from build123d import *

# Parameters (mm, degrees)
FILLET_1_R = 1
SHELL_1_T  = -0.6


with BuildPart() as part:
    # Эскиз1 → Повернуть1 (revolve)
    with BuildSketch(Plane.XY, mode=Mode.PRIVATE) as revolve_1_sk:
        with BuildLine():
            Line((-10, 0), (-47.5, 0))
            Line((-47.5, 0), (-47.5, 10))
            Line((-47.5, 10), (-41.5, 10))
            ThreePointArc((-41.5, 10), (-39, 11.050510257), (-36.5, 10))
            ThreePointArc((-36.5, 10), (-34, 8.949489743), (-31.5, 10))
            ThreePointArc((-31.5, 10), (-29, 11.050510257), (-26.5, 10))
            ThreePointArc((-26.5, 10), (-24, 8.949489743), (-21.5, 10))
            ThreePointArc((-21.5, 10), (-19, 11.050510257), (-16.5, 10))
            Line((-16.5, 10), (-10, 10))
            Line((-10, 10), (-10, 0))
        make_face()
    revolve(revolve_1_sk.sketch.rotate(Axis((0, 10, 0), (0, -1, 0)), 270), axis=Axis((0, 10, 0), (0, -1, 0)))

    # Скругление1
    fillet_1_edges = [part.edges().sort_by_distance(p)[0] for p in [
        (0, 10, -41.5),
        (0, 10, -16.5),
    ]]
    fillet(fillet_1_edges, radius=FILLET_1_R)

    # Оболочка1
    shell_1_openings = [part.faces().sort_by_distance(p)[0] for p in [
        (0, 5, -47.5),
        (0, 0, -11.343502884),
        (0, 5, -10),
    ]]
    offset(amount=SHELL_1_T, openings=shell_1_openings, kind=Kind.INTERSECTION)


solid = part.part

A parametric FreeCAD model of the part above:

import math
import FreeCAD as App
import Part
import Sketcher
from FreeCAD import Vector


def edges_at(feature, points):
    """Names of the edges that pass closest to the given points."""
    edges = feature.Shape.Edges
    near = lambda p: min(range(len(edges)), key=lambda i: edges[i].distToShape(Part.Vertex(*p))[0])
    return sorted({f"Edge{near(p) + 1}" for p in points})


def faces_at(feature, points):
    """Names of the faces that lie closest to the given points."""
    faces = feature.Shape.Faces
    near = lambda p: min(range(len(faces)), key=lambda i: faces[i].distToShape(Part.Vertex(*p))[0])
    return sorted({f"Face{near(p) + 1}" for p in points})

doc = App.newDocument("Part")
params = doc.addObject("Spreadsheet::Sheet", "Params")
for row, (alias, value) in enumerate([
    ("sketch1_radius", "3.5 mm"),
    ("sketch1_width", "6 mm"),
    ("sketch1_height", "10 mm"),
    ("sketch1_width2", "37.5 mm"),
    ("sketch1_width3", "6.5 mm"),
    ("revolution_angle", "360 deg"),
    ("fillet_radius", "1 mm"),
    ("thickness_wall", "0.6 mm"),
], start=1):
    params.set(f"A{row}", alias)
    params.set(f"B{row}", "=" + value)
    params.setAlias(f"B{row}", alias)

body = doc.addObject("PartDesign::Body", "Body")

# Sketch on XY plane
sketch1 = doc.addObject("Sketcher::SketchObject", "Sketch")
body.addObject(sketch1)
sketch1.AttachmentSupport = (doc.XY_Plane, [""])
sketch1.MapMode = "FlatFace"
sketch1.addGeometry([
    Part.LineSegment(Vector(-47.5, 0, 0), Vector(-10, 0, 0)),  # 0
    Part.LineSegment(Vector(-10, 0, 0), Vector(-10, 10, 0)),  # 1
    Part.LineSegment(Vector(-10, 10, 0), Vector(-16.5, 10, 0)),  # 2
    Part.ArcOfCircle(Part.Circle(Vector(-19, 7.55051, 0), Vector(0, 0, 1), 3.5), math.radians(44.415309), math.radians(135.584691)),  # 3
    Part.ArcOfCircle(Part.Circle(Vector(-24, 12.44949, 0), Vector(0, 0, 1), 3.5), math.radians(-135.584691), math.radians(-44.415309)),  # 4
    Part.ArcOfCircle(Part.Circle(Vector(-29, 7.55051, 0), Vector(0, 0, 1), 3.5), math.radians(44.415309), math.radians(135.584691)),  # 5
    Part.ArcOfCircle(Part.Circle(Vector(-34, 12.44949, 0), Vector(0, 0, 1), 3.5), math.radians(-135.584691), math.radians(-44.415309)),  # 6
    Part.ArcOfCircle(Part.Circle(Vector(-39, 7.55051, 0), Vector(0, 0, 1), 3.5), math.radians(44.415309), math.radians(135.584691)),  # 7
    Part.LineSegment(Vector(-41.5, 10, 0), Vector(-47.5, 10, 0)),  # 8
    Part.LineSegment(Vector(-47.5, 10, 0), Vector(-47.5, 0, 0)),  # 9
], False)
sketch1.addConstraint([
    Sketcher.Constraint("Coincident", 0, 2, 1, 1),
    Sketcher.Constraint("Coincident", 1, 2, 2, 1),
    Sketcher.Constraint("Coincident", 2, 2, 3, 1),
    Sketcher.Constraint("Tangent", 3, 2, 4, 2),
    Sketcher.Constraint("Tangent", 4, 1, 5, 1),
    Sketcher.Constraint("Tangent", 5, 2, 6, 2),
    Sketcher.Constraint("Tangent", 6, 1, 7, 1),
    Sketcher.Constraint("Coincident", 7, 2, 8, 1),
    Sketcher.Constraint("Coincident", 8, 2, 9, 1),
    Sketcher.Constraint("Coincident", 9, 2, 0, 1),
    Sketcher.Constraint("Horizontal", 0),
    Sketcher.Constraint("Vertical", 1),
    Sketcher.Constraint("Horizontal", 2),
    Sketcher.Constraint("Horizontal", 8),
    Sketcher.Constraint("Vertical", 9),
    Sketcher.Constraint("Equal", 3, 4),
    Sketcher.Constraint("Equal", 4, 5),
    Sketcher.Constraint("Equal", 5, 6),
    Sketcher.Constraint("Equal", 6, 7),
    Sketcher.Constraint("PointOnObject", 0, 2, -1),
    Sketcher.Constraint("Horizontal", 3, 3, 5, 3),
    Sketcher.Constraint("Horizontal", 4, 3, 6, 3),
    Sketcher.Constraint("Horizontal", 5, 3, 7, 3),
    Sketcher.Constraint("Horizontal", 2, 2, 3, 2),
    Sketcher.Constraint("Horizontal", 6, 1, 7, 2),
    Sketcher.Constraint("Radius", 3, 3.5),
    Sketcher.Constraint("DistanceX", 8, 2, 8, 1, 6.0),
    Sketcher.Constraint("DistanceY", 1, 1, 1, 2, 10.0),
    Sketcher.Constraint("DistanceX", 0, 1, 0, 2, 37.5),
    Sketcher.Constraint("DistanceX", 2, 2, 2, 1, 6.5),
    Sketcher.Constraint("DistanceX", 3, 3, -1, 1, 19.0),
])
sketch1.setExpression("Constraints[25]", "Params.sketch1_radius")
sketch1.setExpression("Constraints[26]", "Params.sketch1_width")
sketch1.setExpression("Constraints[27]", "Params.sketch1_height")
sketch1.setExpression("Constraints[28]", "Params.sketch1_width2")
sketch1.setExpression("Constraints[29]", "Params.sketch1_width3")
revolution = doc.addObject("PartDesign::Revolution", "Revolution")
body.addObject(revolution)
revolution.Profile = sketch1
revolution.ReferenceAxis = (sketch1, ["V_Axis"])
revolution.setExpression("Angle", "Params.revolution_angle")
doc.recompute()

fillet = doc.addObject("PartDesign::Fillet", "Fillet")
body.addObject(fillet)
fillet.Base = (revolution, edges_at(revolution, [(0, 10, -41.5), (0, 10, -16.5)]))
fillet.setExpression("Radius", "Params.fillet_radius")
doc.recompute()

thickness = doc.addObject("PartDesign::Thickness", "Thickness")
body.addObject(thickness)
thickness.Base = (fillet, faces_at(fillet, [(0, 5, -47.5), (19, 0, 19), (0, 5, -10)]))
thickness.setExpression("Value", "Params.thickness_wall")
thickness.Reversed = True
thickness.Join = "Intersection"

doc.recompute()
